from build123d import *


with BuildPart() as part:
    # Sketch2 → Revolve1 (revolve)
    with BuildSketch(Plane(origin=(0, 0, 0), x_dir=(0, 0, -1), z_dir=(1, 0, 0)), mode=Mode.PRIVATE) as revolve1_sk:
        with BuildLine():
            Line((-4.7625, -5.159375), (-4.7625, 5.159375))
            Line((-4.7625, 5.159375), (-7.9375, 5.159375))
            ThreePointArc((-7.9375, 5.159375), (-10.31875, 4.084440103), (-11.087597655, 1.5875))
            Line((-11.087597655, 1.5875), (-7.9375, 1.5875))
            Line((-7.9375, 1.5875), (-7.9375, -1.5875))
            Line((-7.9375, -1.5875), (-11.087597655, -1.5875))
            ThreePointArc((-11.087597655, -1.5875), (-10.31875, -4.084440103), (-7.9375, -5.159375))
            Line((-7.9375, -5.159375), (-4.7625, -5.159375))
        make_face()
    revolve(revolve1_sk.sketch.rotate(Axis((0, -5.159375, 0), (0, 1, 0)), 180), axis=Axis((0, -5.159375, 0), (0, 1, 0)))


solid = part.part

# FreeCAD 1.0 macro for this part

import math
import FreeCAD as App
import Part
import Sketcher
from FreeCAD import Vector
Q = App.Units.Quantity

doc = App.newDocument("Part")
body = doc.addObject("PartDesign::Body", "Body")

# Sketch on YZ plane
sketch1 = doc.addObject("Sketcher::SketchObject", "Sketch")
body.addObject(sketch1)
sketch1.AttachmentSupport = (doc.YZ_Plane, [""])
sketch1.MapMode = "FlatFace"
sketch1.addGeometry(Part.LineSegment(Vector(-5.2, 4.8, 0), Vector(5.2, 4.8, 0)), False)
sketch1.addGeometry(Part.LineSegment(Vector(5.2, 4.8, 0), Vector(5.2, 7.9, 0)), False)
sketch1.addGeometry(Part.ArcOfCircle(Part.Circle(Vector(2, 7.9, 0), Vector(0, 0, 1), 3.2), math.radians(0), math.radians(97)), False)
sketch1.addGeometry(Part.LineSegment(Vector(1.6, 11.1, 0), Vector(1.6, 7.9, 0)), False)
sketch1.addGeometry(Part.LineSegment(Vector(1.6, 7.9, 0), Vector(-1.6, 7.9, 0)), False)
sketch1.addGeometry(Part.LineSegment(Vector(-1.6, 7.9, 0), Vector(-1.6, 11.1, 0)), False)
sketch1.addGeometry(Part.ArcOfCircle(Part.Circle(Vector(-2, 7.9, 0), Vector(0, 0, 1), 3.2), math.radians(83), math.radians(180)), False)
sketch1.addGeometry(Part.LineSegment(Vector(-5.2, 7.9, 0), Vector(-5.2, 4.8, 0)), False)
sketch1.addConstraint(Sketcher.Constraint("Coincident", 0, 2, 1, 1))
sketch1.addConstraint(Sketcher.Constraint("Tangent", 1, 2, 2, 1))
sketch1.addConstraint(Sketcher.Constraint("Coincident", 2, 2, 3, 1))
sketch1.addConstraint(Sketcher.Constraint("Coincident", 3, 2, 4, 1))
sketch1.addConstraint(Sketcher.Constraint("Coincident", 4, 2, 5, 1))
sketch1.addConstraint(Sketcher.Constraint("Coincident", 5, 2, 6, 1))
sketch1.addConstraint(Sketcher.Constraint("Tangent", 6, 2, 7, 1))
sketch1.addConstraint(Sketcher.Constraint("Coincident", 7, 2, 0, 1))
sketch1.addConstraint(Sketcher.Constraint("Horizontal", 0))
sketch1.addConstraint(Sketcher.Constraint("Vertical", 1))
sketch1.addConstraint(Sketcher.Constraint("Vertical", 3))
sketch1.addConstraint(Sketcher.Constraint("Horizontal", 4))
sketch1.addConstraint(Sketcher.Constraint("Vertical", 5))
sketch1.addConstraint(Sketcher.Constraint("Vertical", 7))
sketch1.addConstraint(Sketcher.Constraint("Equal", 2, 6))
sketch1.addConstraint(Sketcher.Constraint("Symmetric", 2, 3, 6, 3, -2))
sketch1.addConstraint(Sketcher.Constraint("Horizontal", 1, 2, 3, 2))
sketch1.addConstraint(Sketcher.Constraint("Horizontal", 2, 2, 5, 2))
sketch1.addConstraint(Sketcher.Constraint("Equal", 4, 1))
sketch1.addConstraint(Sketcher.Constraint("Radius", 2, Q("0.125 in")))
sketch1.addConstraint(Sketcher.Constraint("DistanceX", 0, 1, 0, 2, Q("0.40625 in")))
sketch1.addConstraint(Sketcher.Constraint("DistanceX", 4, 2, 4, 1, Q("0.125 in")))
sketch1.addConstraint(Sketcher.Constraint("DistanceY", -1, 1, 2, 3, Q("0.3125 in")))
revolution = doc.addObject("PartDesign::Revolution", "Revolution")
body.addObject(revolution)
revolution.Profile = sketch1
revolution.ReferenceAxis = (sketch1, ["H_Axis"])
revolution.Angle = 360

doc.recompute()
